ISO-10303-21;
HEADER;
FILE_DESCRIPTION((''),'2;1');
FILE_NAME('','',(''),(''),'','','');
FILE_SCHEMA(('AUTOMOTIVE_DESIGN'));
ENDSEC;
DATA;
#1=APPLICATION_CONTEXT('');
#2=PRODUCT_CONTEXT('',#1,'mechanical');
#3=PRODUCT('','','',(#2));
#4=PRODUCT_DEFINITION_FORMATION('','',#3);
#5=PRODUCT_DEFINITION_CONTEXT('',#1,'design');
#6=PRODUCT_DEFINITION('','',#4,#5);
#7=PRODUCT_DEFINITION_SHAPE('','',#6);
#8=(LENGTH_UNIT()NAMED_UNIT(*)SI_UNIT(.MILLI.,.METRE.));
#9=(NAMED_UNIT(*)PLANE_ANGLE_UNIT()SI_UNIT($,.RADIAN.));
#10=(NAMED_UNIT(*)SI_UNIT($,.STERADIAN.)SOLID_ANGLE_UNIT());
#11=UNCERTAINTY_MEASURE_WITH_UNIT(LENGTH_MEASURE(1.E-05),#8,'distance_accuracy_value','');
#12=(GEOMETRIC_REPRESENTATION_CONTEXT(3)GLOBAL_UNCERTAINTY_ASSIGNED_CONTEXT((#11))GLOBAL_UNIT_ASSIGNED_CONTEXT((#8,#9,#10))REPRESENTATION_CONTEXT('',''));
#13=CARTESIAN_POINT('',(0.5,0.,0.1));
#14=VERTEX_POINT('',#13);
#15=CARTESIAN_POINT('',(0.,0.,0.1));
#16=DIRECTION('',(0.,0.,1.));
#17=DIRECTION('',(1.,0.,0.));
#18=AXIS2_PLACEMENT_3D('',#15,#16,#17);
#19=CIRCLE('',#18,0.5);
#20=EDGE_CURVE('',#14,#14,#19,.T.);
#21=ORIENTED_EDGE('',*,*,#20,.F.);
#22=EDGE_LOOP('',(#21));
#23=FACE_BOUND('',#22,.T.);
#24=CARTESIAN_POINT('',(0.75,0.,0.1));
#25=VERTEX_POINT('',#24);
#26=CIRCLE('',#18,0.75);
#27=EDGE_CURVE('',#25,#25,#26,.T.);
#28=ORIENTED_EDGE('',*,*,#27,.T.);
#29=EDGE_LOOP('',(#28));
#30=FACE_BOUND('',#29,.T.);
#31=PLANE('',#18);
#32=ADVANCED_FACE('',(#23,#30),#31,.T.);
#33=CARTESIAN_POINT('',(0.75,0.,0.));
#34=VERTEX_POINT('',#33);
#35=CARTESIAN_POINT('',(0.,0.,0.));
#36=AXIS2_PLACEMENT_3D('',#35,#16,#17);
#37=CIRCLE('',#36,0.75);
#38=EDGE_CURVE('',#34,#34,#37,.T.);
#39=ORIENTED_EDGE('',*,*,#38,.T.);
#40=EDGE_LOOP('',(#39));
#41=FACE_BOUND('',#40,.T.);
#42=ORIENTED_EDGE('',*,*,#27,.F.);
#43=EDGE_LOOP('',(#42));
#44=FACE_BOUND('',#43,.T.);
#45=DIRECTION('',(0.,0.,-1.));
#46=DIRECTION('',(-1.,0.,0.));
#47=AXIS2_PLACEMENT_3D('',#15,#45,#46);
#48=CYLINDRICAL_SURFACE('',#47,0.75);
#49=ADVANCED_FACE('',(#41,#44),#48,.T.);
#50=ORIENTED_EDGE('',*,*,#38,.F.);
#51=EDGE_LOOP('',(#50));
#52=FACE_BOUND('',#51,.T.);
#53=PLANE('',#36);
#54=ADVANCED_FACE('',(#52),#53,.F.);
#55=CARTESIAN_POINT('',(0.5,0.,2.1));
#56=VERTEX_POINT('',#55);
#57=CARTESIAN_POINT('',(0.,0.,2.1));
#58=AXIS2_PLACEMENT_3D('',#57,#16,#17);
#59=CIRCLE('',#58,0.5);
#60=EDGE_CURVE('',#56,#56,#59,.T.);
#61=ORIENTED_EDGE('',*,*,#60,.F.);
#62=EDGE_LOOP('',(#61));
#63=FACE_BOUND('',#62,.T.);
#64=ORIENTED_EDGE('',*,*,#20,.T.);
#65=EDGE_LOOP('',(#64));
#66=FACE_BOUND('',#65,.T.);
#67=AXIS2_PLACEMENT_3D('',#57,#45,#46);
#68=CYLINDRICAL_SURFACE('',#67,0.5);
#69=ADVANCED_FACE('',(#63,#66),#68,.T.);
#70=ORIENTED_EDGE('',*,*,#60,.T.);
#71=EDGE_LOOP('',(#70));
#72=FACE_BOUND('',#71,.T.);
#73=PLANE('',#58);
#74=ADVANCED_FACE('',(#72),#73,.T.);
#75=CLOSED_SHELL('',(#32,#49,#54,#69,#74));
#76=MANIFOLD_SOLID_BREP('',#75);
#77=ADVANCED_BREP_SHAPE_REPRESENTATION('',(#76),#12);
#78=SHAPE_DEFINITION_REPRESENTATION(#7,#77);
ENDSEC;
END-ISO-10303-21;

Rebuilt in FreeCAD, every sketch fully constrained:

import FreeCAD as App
import Part
import Sketcher
from FreeCAD import Vector
Q = App.Units.Quantity

doc = App.newDocument("Part")
body = doc.addObject("PartDesign::Body", "Body")

# Sketch on XY plane
sketch1 = body.newObject("Sketcher::SketchObject", "Sketch")
sketch1.AttachmentSupport = (doc.getObject("XY_Plane"), [""])
sketch1.MapMode = "FlatFace"
sketch1.addGeometry(Part.Circle(Vector(0, 0, 0), Vector(0, 0, 1), 0.75), False)
sketch1.addConstraint([
    Sketcher.Constraint("Coincident", 0, 3, -1, 1),
    Sketcher.Constraint("Diameter", 0, Q("1.5 mm")),
])
pad1 = body.newObject("PartDesign::Pad", "Pad")
pad1.Profile = sketch1
pad1.Length = 0.1

# Sketch on XY plane
sketch2 = body.newObject("Sketcher::SketchObject", "Sketch001")
sketch2.AttachmentSupport = (doc.getObject("XY_Plane"), [""])
sketch2.MapMode = "FlatFace"
sketch2.AttachmentOffset = App.Placement(Vector(0, 0, 0.1), App.Rotation())
sketch2.addGeometry(Part.Circle(Vector(0, 0, 0), Vector(0, 0, 1), 0.5), False)
sketch2.addConstraint([
    Sketcher.Constraint("Coincident", 0, 3, -1, 1),
    Sketcher.Constraint("Diameter", 0, Q("1 mm")),
])
pad2 = body.newObject("PartDesign::Pad", "Pad001")
pad2.Profile = sketch2
pad2.Length = 2

doc.recompute()
